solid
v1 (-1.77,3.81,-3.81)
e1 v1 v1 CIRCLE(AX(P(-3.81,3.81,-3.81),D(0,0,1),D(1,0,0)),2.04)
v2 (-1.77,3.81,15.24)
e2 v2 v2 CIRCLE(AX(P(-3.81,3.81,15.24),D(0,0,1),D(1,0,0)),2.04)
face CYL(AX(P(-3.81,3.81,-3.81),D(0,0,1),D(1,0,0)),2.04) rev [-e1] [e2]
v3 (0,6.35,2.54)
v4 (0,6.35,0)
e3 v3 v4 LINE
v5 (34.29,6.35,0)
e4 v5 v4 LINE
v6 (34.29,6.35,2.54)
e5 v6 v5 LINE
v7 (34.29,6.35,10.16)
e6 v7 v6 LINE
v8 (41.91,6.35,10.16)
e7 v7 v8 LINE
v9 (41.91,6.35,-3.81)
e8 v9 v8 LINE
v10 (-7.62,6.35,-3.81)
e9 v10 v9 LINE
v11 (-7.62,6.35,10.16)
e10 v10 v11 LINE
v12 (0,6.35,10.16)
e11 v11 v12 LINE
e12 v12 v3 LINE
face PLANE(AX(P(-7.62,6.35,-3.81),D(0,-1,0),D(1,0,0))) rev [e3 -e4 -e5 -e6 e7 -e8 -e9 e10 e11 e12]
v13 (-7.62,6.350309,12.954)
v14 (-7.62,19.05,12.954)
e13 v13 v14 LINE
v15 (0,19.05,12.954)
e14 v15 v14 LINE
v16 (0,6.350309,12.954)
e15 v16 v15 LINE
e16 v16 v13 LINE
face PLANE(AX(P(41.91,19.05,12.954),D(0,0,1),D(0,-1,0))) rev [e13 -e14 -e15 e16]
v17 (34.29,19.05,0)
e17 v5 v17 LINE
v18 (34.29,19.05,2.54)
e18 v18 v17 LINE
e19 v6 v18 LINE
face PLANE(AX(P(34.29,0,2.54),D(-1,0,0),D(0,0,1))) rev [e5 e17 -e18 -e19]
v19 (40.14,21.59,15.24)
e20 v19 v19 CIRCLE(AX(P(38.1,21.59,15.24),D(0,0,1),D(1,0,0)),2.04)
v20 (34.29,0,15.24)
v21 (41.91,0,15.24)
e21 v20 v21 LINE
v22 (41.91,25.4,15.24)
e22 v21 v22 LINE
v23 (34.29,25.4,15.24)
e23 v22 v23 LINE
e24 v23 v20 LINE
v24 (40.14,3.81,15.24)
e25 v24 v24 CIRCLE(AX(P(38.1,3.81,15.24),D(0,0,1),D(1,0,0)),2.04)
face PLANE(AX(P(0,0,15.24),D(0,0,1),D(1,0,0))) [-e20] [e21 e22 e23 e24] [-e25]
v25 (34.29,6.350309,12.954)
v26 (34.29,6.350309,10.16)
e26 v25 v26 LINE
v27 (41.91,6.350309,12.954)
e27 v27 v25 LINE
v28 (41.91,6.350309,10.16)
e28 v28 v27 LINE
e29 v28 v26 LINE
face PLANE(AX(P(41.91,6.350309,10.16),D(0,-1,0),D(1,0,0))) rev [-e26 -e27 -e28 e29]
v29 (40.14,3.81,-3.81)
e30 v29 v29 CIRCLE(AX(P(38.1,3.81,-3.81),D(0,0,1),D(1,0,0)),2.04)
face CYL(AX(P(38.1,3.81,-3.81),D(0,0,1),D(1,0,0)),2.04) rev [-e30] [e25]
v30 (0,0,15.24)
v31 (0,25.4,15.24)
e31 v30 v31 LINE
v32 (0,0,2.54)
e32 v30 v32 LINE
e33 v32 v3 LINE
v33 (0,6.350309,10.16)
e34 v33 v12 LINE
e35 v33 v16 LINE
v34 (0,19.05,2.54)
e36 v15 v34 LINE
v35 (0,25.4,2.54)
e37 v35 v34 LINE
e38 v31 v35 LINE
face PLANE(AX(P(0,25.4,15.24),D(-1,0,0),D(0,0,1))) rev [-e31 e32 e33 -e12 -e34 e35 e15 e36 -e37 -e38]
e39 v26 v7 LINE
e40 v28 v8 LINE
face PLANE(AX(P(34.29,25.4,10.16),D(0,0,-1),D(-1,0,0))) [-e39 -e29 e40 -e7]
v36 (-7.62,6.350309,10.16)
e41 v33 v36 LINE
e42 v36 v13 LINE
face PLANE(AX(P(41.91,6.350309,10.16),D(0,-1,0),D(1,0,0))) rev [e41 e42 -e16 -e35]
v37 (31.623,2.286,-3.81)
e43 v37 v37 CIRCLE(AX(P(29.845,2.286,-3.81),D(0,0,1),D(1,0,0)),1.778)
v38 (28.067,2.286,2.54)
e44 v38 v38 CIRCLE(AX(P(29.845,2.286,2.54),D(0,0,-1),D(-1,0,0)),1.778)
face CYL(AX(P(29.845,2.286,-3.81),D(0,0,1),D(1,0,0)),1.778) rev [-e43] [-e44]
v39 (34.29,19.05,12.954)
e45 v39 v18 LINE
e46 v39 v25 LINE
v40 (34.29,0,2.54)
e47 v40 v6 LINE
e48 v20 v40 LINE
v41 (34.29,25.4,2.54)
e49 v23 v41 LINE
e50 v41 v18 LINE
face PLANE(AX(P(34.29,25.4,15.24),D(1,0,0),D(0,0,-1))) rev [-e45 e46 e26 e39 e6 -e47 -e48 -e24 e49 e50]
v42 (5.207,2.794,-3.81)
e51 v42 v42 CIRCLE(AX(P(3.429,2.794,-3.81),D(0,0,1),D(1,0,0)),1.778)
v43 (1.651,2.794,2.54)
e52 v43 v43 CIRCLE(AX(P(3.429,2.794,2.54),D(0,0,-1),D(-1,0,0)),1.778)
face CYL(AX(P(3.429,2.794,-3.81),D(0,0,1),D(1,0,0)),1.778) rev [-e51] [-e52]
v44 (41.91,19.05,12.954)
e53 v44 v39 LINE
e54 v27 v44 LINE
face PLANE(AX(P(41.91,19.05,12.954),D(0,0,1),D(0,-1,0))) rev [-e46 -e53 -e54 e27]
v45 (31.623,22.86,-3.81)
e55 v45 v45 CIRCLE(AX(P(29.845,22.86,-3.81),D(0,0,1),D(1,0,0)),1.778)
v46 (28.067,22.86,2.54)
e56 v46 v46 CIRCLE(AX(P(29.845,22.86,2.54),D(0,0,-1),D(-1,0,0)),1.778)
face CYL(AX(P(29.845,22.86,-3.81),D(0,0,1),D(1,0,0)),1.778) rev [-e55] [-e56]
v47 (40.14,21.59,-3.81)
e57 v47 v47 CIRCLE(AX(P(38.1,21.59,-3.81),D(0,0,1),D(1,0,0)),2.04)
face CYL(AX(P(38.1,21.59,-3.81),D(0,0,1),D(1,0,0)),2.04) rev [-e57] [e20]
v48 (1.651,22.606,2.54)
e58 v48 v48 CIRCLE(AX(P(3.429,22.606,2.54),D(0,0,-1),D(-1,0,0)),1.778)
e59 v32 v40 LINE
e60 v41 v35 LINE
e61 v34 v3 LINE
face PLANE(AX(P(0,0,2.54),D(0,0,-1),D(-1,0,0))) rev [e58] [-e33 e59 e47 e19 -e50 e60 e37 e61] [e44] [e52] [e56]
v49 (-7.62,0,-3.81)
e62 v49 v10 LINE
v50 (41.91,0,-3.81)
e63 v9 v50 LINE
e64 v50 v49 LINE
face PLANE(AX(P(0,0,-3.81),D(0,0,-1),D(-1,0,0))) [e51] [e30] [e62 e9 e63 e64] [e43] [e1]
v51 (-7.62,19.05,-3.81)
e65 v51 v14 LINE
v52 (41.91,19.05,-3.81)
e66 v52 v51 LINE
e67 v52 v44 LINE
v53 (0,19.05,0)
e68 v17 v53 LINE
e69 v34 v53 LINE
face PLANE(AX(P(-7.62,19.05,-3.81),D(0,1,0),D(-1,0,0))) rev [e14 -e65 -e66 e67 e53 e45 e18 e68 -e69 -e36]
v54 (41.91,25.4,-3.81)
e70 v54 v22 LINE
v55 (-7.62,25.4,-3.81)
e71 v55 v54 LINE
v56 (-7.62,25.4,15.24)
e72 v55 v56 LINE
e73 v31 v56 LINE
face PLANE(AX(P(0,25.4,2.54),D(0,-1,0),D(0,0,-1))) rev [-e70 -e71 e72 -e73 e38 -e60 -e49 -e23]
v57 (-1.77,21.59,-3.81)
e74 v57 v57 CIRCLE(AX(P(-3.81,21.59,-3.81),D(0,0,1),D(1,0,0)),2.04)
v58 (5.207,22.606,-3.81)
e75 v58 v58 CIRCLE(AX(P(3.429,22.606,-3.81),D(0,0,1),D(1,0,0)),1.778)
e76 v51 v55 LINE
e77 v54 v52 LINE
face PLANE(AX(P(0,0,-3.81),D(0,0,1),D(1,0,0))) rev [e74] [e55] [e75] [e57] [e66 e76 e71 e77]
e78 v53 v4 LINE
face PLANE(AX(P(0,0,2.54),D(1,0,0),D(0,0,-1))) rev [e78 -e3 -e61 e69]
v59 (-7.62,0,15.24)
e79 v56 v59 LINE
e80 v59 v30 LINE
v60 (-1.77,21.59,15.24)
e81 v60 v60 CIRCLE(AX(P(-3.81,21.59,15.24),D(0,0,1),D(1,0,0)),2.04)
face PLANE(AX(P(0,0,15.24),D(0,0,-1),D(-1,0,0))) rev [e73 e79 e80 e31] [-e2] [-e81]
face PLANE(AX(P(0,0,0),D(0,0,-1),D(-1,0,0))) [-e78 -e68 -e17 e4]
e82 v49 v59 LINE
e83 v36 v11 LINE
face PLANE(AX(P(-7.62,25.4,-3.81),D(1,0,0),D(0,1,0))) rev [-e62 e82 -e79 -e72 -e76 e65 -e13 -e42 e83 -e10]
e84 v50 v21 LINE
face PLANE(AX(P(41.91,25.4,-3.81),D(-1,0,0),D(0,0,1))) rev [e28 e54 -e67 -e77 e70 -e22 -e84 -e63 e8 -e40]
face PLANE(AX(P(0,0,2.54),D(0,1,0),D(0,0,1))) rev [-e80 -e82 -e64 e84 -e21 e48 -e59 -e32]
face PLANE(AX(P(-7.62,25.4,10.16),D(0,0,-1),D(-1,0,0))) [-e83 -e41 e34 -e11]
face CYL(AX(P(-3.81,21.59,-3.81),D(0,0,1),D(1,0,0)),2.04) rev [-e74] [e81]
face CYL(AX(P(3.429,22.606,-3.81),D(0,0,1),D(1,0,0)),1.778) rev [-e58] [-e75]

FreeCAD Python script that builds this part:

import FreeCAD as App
import Part
import Sketcher

V = App.Vector
Q = App.Units.Quantity

doc = App.newDocument("Part")
body = doc.addObject("PartDesign::Body", "Body")

# Sketch on XY plane
sketch1 = body.newObject("Sketcher::SketchObject", "Sketch")
sketch1.AttachmentSupport = (doc.getObject("XY_Plane"), [""])
sketch1.MapMode = "FlatFace"
sketch1.addGeometry(Part.LineSegment(V(0, 25, 0), V(0, 0, 0)), False)
sketch1.addGeometry(Part.LineSegment(V(0, 0, 0), V(34, 0, 0)), False)
sketch1.addGeometry(Part.LineSegment(V(34, 0, 0), V(34, 25, 0)), False)
sketch1.addGeometry(Part.LineSegment(V(34, 25, 0), V(0, 25, 0)), False)
sketch1.addConstraint(Sketcher.Constraint("Coincident", 0, 2, 1, 1))
sketch1.addConstraint(Sketcher.Constraint("Coincident", 1, 2, 2, 1))
sketch1.addConstraint(Sketcher.Constraint("Coincident", 2, 2, 3, 1))
sketch1.addConstraint(Sketcher.Constraint("Coincident", 3, 2, 0, 1))
sketch1.addConstraint(Sketcher.Constraint("Vertical", 0))
sketch1.addConstraint(Sketcher.Constraint("Horizontal", 1))
sketch1.addConstraint(Sketcher.Constraint("Vertical", 2))
sketch1.addConstraint(Sketcher.Constraint("Horizontal", 3))
sketch1.addConstraint(Sketcher.Constraint("Coincident", 0, 2, -1, 1))
sketch1.addConstraint(Sketcher.Constraint("DistanceY", 0, 2, 0, 1, Q("1 in")))
sketch1.addConstraint(Sketcher.Constraint("DistanceX", 1, 1, 1, 2, Q("1.35 in")))
pad1 = body.newObject("PartDesign::Pad", "Pad")
pad1.Profile = sketch1
pad1.Length = Q("0.1 in")

# Sketch on XY plane
sketch2 = body.newObject("Sketcher::SketchObject", "Sketch001")
sketch2.AttachmentSupport = (doc.getObject("XY_Plane"), [""])
sketch2.MapMode = "FlatFace"
sketch2.addGeometry(Part.LineSegment(V(42, 25, 0), V(42, 19, 0)), False)
sketch2.addGeometry(Part.LineSegment(V(42, 19, 0), V(-8, 19, 0)), False)
sketch2.addGeometry(Part.LineSegment(V(-8, 19, 0), V(-8, 25, 0)), False)
sketch2.addGeometry(Part.LineSegment(V(-8, 25, 0), V(42, 25, 0)), False)
sketch2.addGeometry(Part.LineSegment(V(42, 6, 0), V(42, 0, 0)), False)
sketch2.addGeometry(Part.LineSegment(V(42, 0, 0), V(-8, 0, 0)), False)
sketch2.addGeometry(Part.LineSegment(V(-8, 0, 0), V(-8, 6, 0)), False)
sketch2.addGeometry(Part.LineSegment(V(-8, 6, 0), V(42, 6, 0)), False)
sketch2.addConstraint(Sketcher.Constraint("Coincident", 0, 2, 1, 1))
sketch2.addConstraint(Sketcher.Constraint("Coincident", 1, 2, 2, 1))
sketch2.addConstraint(Sketcher.Constraint("Coincident", 2, 2, 3, 1))
sketch2.addConstraint(Sketcher.Constraint("Coincident", 3, 2, 0, 1))
sketch2.addConstraint(Sketcher.Constraint("Coincident", 4, 2, 5, 1))
sketch2.addConstraint(Sketcher.Constraint("Coincident", 5, 2, 6, 1))
sketch2.addConstraint(Sketcher.Constraint("Coincident", 6, 2, 7, 1))
sketch2.addConstraint(Sketcher.Constraint("Coincident", 7, 2, 4, 1))
sketch2.addConstraint(Sketcher.Constraint("Vertical", 0))
sketch2.addConstraint(Sketcher.Constraint("Horizontal", 1))
sketch2.addConstraint(Sketcher.Constraint("Vertical", 2))
sketch2.addConstraint(Sketcher.Constraint("Horizontal", 3))
sketch2.addConstraint(Sketcher.Constraint("Vertical", 4))
sketch2.addConstraint(Sketcher.Constraint("Horizontal", 5))
sketch2.addConstraint(Sketcher.Constraint("Vertical", 6))
sketch2.addConstraint(Sketcher.Constraint("Horizontal", 7))
sketch2.addConstraint(Sketcher.Constraint("PointOnObject", 4, 2, -1))
sketch2.addConstraint(Sketcher.Constraint("Vertical", 3, 2, 4, 2))
sketch2.addConstraint(Sketcher.Constraint("Vertical", 2, 2, 5, 2))
sketch2.addConstraint(Sketcher.Constraint("Equal", 2, 4))
sketch2.addConstraint(Sketcher.Constraint("DistanceY", -1, 1, 2, 2, Q("1 in")))
sketch2.addConstraint(Sketcher.Constraint("DistanceX", 1, 2, 1, 1, Q("1.95 in")))
sketch2.addConstraint(Sketcher.Constraint("DistanceY", 0, 2, 0, 1, Q("0.25 in")))
sketch2.addConstraint(Sketcher.Constraint("DistanceX", 1, 2, -1, 1, Q("0.3 in")))
pad2 = body.newObject("PartDesign::Pad", "Pad001")
pad2.Profile = sketch2
pad2.Length = Q("0.15 in")
pad2.Reversed = True

# Sketch on XY plane
sketch3 = body.newObject("Sketcher::SketchObject", "Sketch002")
sketch3.AttachmentSupport = (doc.getObject("XY_Plane"), [""])
sketch3.MapMode = "FlatFace"
sketch3.AttachmentOffset = App.Placement(V(0, 0, 0.1 * 25.4), App.Rotation())
sketch3.addGeometry(Part.Circle(V(3.4, 22.6, 0), V(0, 0, 1), 1.8), False)
sketch3.addGeometry(Part.Circle(V(29.8, 22.9, 0), V(0, 0, 1), 1.8), False)
sketch3.addGeometry(Part.Circle(V(3.4, 2.8, 0), V(0, 0, 1), 1.8), False)
sketch3.addGeometry(Part.Circle(V(29.8, 2.3, 0), V(0, 0, 1), 1.8), False)
sketch3.addConstraint(Sketcher.Constraint("Equal", 0, 1))
sketch3.addConstraint(Sketcher.Constraint("Equal", 1, 2))
sketch3.addConstraint(Sketcher.Constraint("Equal", 2, 3))
sketch3.addConstraint(Sketcher.Constraint("Vertical", 0, 3, 2, 3))
sketch3.addConstraint(Sketcher.Constraint("Vertical", 1, 3, 3, 3))
sketch3.addConstraint(Sketcher.Constraint("Diameter", 0, Q("0.14 in")))
sketch3.addConstraint(Sketcher.Constraint("DistanceY", -1, 1, 1, 3, Q("0.9 in")))
sketch3.addConstraint(Sketcher.Constraint("DistanceY", 3, 3, 0, 3, Q("0.8 in")))
sketch3.addConstraint(Sketcher.Constraint("DistanceY", -1, 1, 0, 3, Q("0.89 in")))
sketch3.addConstraint(Sketcher.Constraint("DistanceY", -1, 1, 2, 3, Q("0.11 in")))
sketch3.addConstraint(Sketcher.Constraint("DistanceX", 0, 3, 1, 3, Q("1.04 in")))
sketch3.addConstraint(Sketcher.Constraint("DistanceX", -1, 1, 0, 3, Q("0.135 in")))
pocket1 = body.newObject("PartDesign::Pocket", "Pocket")
pocket1.Profile = sketch3
pocket1.Type = "ThroughAll"
pocket1.Midplane = True

# Sketch on XY plane
sketch4 = body.newObject("Sketcher::SketchObject", "Sketch003")
sketch4.AttachmentSupport = (doc.getObject("XY_Plane"), [""])
sketch4.MapMode = "FlatFace"
sketch4.addGeometry(Part.LineSegment(V(-8, 25, 0), V(-8, 19, 0)), False)
sketch4.addGeometry(Part.LineSegment(V(-8, 19, 0), V(0, 19, 0)), False)
sketch4.addGeometry(Part.LineSegment(V(0, 19, 0), V(0, 25, 0)), False)
sketch4.addGeometry(Part.LineSegment(V(0, 25, 0), V(-8, 25, 0)), False)
sketch4.addGeometry(Part.LineSegment(V(34, 25, 0), V(34, 19, 0)), False)
sketch4.addGeometry(Part.LineSegment(V(34, 19, 0), V(42, 19, 0)), False)
sketch4.addGeometry(Part.LineSegment(V(42, 19, 0), V(42, 25, 0)), False)
sketch4.addGeometry(Part.LineSegment(V(42, 25, 0), V(34, 25, 0)), False)
sketch4.addGeometry(Part.LineSegment(V(34, 6, 0), V(34, 0, 0)), False)
sketch4.addGeometry(Part.LineSegment(V(34, 0, 0), V(42, 0, 0)), False)
sketch4.addGeometry(Part.LineSegment(V(42, 0, 0), V(42, 6, 0)), False)
sketch4.addGeometry(Part.LineSegment(V(42, 6, 0), V(34, 6, 0)), False)
sketch4.addGeometry(Part.LineSegment(V(-8, 6, 0), V(-8, 0, 0)), False)
sketch4.addGeometry(Part.LineSegment(V(-8, 0, 0), V(0, 0, 0)), False)
sketch4.addGeometry(Part.LineSegment(V(0, 0, 0), V(0, 6, 0)), False)
sketch4.addGeometry(Part.LineSegment(V(0, 6, 0), V(-8, 6, 0)), False)
sketch4.addConstraint(Sketcher.Constraint("Coincident", 0, 2, 1, 1))
sketch4.addConstraint(Sketcher.Constraint("Coincident", 1, 2, 2, 1))
sketch4.addConstraint(Sketcher.Constraint("Coincident", 2, 2, 3, 1))
sketch4.addConstraint(Sketcher.Constraint("Coincident", 3, 2, 0, 1))
sketch4.addConstraint(Sketcher.Constraint("Coincident", 4, 2, 5, 1))
sketch4.addConstraint(Sketcher.Constraint("Coincident", 5, 2, 6, 1))
sketch4.addConstraint(Sketcher.Constraint("Coincident", 6, 2, 7, 1))
sketch4.addConstraint(Sketcher.Constraint("Coincident", 7, 2, 4, 1))
sketch4.addConstraint(Sketcher.Constraint("Coincident", 8, 2, 9, 1))
sketch4.addConstraint(Sketcher.Constraint("Coincident", 9, 2, 10, 1))
sketch4.addConstraint(Sketcher.Constraint("Coincident", 10, 2, 11, 1))
sketch4.addConstraint(Sketcher.Constraint("Coincident", 11, 2, 8, 1))
sketch4.addConstraint(Sketcher.Constraint("Coincident", 12, 2, 13, 1))
sketch4.addConstraint(Sketcher.Constraint("Coincident", 13, 2, 14, 1))
sketch4.addConstraint(Sketcher.Constraint("Coincident", 14, 2, 15, 1))
sketch4.addConstraint(Sketcher.Constraint("Coincident", 15, 2, 12, 1))
sketch4.addConstraint(Sketcher.Constraint("Vertical", 0))
sketch4.addConstraint(Sketcher.Constraint("Horizontal", 1))
sketch4.addConstraint(Sketcher.Constraint("Vertical", 2))
sketch4.addConstraint(Sketcher.Constraint("Horizontal", 3))
sketch4.addConstraint(Sketcher.Constraint("Vertical", 4))
sketch4.addConstraint(Sketcher.Constraint("Horizontal", 5))
sketch4.addConstraint(Sketcher.Constraint("Vertical", 6))
sketch4.addConstraint(Sketcher.Constraint("Horizontal", 7))
sketch4.addConstraint(Sketcher.Constraint("Vertical", 8))
sketch4.addConstraint(Sketcher.Constraint("Horizontal", 9))
sketch4.addConstraint(Sketcher.Constraint("Vertical", 10))
sketch4.addConstraint(Sketcher.Constraint("Horizontal", 11))
sketch4.addConstraint(Sketcher.Constraint("Vertical", 12))
sketch4.addConstraint(Sketcher.Constraint("Horizontal", 13))
sketch4.addConstraint(Sketcher.Constraint("Vertical", 14))
sketch4.addConstraint(Sketcher.Constraint("Horizontal", 15))
sketch4.addConstraint(Sketcher.Constraint("Coincident", 13, 2, -1, 1))
sketch4.addConstraint(Sketcher.Constraint("PointOnObject", 1, 2, -2))
sketch4.addConstraint(Sketcher.Constraint("PointOnObject", 8, 2, -1))
sketch4.addConstraint(Sketcher.Constraint("Horizontal", 1, 2, 4, 2))
sketch4.addConstraint(Sketcher.Constraint("Horizontal", 3, 2, 6, 2))
sketch4.addConstraint(Sketcher.Constraint("Horizontal", 11, 2, 14, 2))
sketch4.addConstraint(Sketcher.Constraint("Vertical", 7, 2, 8, 2))
sketch4.addConstraint(Sketcher.Constraint("Vertical", 6, 2, 9, 2))
sketch4.addConstraint(Sketcher.Constraint("Vertical", 3, 2, 12, 2))
sketch4.addConstraint(Sketcher.Constraint("Equal", 3, 5))
sketch4.addConstraint(Sketcher.Constraint("Equal", 6, 8))
sketch4.addConstraint(Sketcher.Constraint("DistanceX", 1, 1, 1, 2, Q("0.3 in")))
sketch4.addConstraint(Sketcher.Constraint("DistanceY", -1, 1, 2, 2, Q("1 in")))
sketch4.addConstraint(Sketcher.Constraint("DistanceY", 0, 2, 0, 1, Q("0.25 in")))
sketch4.addConstraint(Sketcher.Constraint("DistanceX", -1, 1, 4, 2, Q("1.35 in")))
pad3 = body.newObject("PartDesign::Pad", "Pad002")
pad3.Profile = sketch4
pad3.Length = Q("0.6 in")

# Sketch on XZ plane
sketch5 = body.newObject("Sketcher::SketchObject", "Sketch004")
sketch5.AttachmentSupport = (doc.getObject("XZ_Plane"), [""])
sketch5.MapMode = "FlatFace"
sketch5.addGeometry(Part.LineSegment(V(-8, 15, 0), V(-8, 10, 0)), False)
sketch5.addGeometry(Part.LineSegment(V(-8, 10, 0), V(0, 10, 0)), False)
sketch5.addGeometry(Part.LineSegment(V(0, 10, 0), V(0, 15, 0)), False)
sketch5.addGeometry(Part.LineSegment(V(0, 15, 0), V(-8, 15, 0)), False)
sketch5.addConstraint(Sketcher.Constraint("Coincident", 0, 2, 1, 1))
sketch5.addConstraint(Sketcher.Constraint("Coincident", 1, 2, 2, 1))
sketch5.addConstraint(Sketcher.Constraint("Coincident", 2, 2, 3, 1))
sketch5.addConstraint(Sketcher.Constraint("Coincident", 3, 2, 0, 1))
sketch5.addConstraint(Sketcher.Constraint("Vertical", 0))
sketch5.addConstraint(Sketcher.Constraint("Horizontal", 1))
sketch5.addConstraint(Sketcher.Constraint("Vertical", 2))
sketch5.addConstraint(Sketcher.Constraint("Horizontal", 3))
sketch5.addConstraint(Sketcher.Constraint("PointOnObject", 1, 2, -2))
sketch5.addConstraint(Sketcher.Constraint("DistanceX", 1, 1, 1, 2, Q("0.3 in")))
sketch5.addConstraint(Sketcher.Constraint("DistanceY", 0, 2, 0, 1, Q("0.2 in")))
sketch5.addConstraint(Sketcher.Constraint("DistanceY", -1, 1, 0, 2, Q("0.4 in")))
pad4 = body.newObject("PartDesign::Pad", "Pad003")
pad4.Profile = sketch5
pad4.Length = Q("0.75 in")
pad4.Reversed = True

# Sketch on XZ plane
sketch6 = body.newObject("Sketcher::SketchObject", "Sketch005")
sketch6.AttachmentSupport = (doc.getObject("XZ_Plane"), [""])
sketch6.MapMode = "FlatFace"
sketch6.addGeometry(Part.LineSegment(V(34, 15, 0), V(34, 10, 0)), False)
sketch6.addGeometry(Part.LineSegment(V(34, 10, 0), V(42, 10, 0)), False)
sketch6.addGeometry(Part.LineSegment(V(42, 10, 0), V(42, 15, 0)), False)
sketch6.addGeometry(Part.LineSegment(V(42, 15, 0), V(34, 15, 0)), False)
sketch6.addConstraint(Sketcher.Constraint("Coincident", 0, 2, 1, 1))
sketch6.addConstraint(Sketcher.Constraint("Coincident", 1, 2, 2, 1))
sketch6.addConstraint(Sketcher.Constraint("Coincident", 2, 2, 3, 1))
sketch6.addConstraint(Sketcher.Constraint("Coincident", 3, 2, 0, 1))
sketch6.addConstraint(Sketcher.Constraint("Vertical", 0))
sketch6.addConstraint(Sketcher.Constraint("Horizontal", 1))
sketch6.addConstraint(Sketcher.Constraint("Vertical", 2))
sketch6.addConstraint(Sketcher.Constraint("Horizontal", 3))
sketch6.addConstraint(Sketcher.Constraint("DistanceX", 1, 1, 1, 2, Q("0.3 in")))
sketch6.addConstraint(Sketcher.Constraint("DistanceY", 0, 2, 0, 1, Q("0.2 in")))
sketch6.addConstraint(Sketcher.Constraint("DistanceY", -1, 1, 0, 2, Q("0.4 in")))
sketch6.addConstraint(Sketcher.Constraint("DistanceX", -1, 1, 0, 2, Q("1.35 in")))
pad5 = body.newObject("PartDesign::Pad", "Pad004")
pad5.Profile = sketch6
pad5.Length = Q("0.75 in")
pad5.Reversed = True

# Sketch on XY plane
sketch7 = body.newObject("Sketcher::SketchObject", "Sketch006")
sketch7.AttachmentSupport = (doc.getObject("XY_Plane"), [""])
sketch7.MapMode = "FlatFace"
sketch7.AttachmentOffset = App.Placement(V(0, 0, 0.6 * 25.4), App.Rotation())
sketch7.addGeometry(Part.Circle(V(38.1, 3.8, 0), V(0, 0, 1), 2), False)
sketch7.addGeometry(Part.Circle(V(38.1, 21.6, 0), V(0, 0, 1), 2), False)
sketch7.addGeometry(Part.Circle(V(-3.8, 3.8, 0), V(0, 0, 1), 2), False)
sketch7.addGeometry(Part.Circle(V(-3.8, 21.6, 0), V(0, 0, 1), 2), False)
sketch7.addConstraint(Sketcher.Constraint("Equal", 0, 1))
sketch7.addConstraint(Sketcher.Constraint("Equal", 1, 2))
sketch7.addConstraint(Sketcher.Constraint("Equal", 2, 3))
sketch7.addConstraint(Sketcher.Constraint("Horizontal", 0, 3, 2, 3))
sketch7.addConstraint(Sketcher.Constraint("Horizontal", 1, 3, 3, 3))
sketch7.addConstraint(Sketcher.Constraint("Vertical", 0, 3, 1, 3))
sketch7.addConstraint(Sketcher.Constraint("Vertical", 2, 3, 3, 3))
sketch7.addConstraint(Sketcher.Constraint("DistanceX", -1, 1, 0, 3, Q("1.5 in")))
sketch7.addConstraint(Sketcher.Constraint("DistanceY", 0, 3, 1, 3, Q("0.7 in")))
sketch7.addConstraint(Sketcher.Constraint("Diameter", 0, 4.08))
sketch7.addConstraint(Sketcher.Constraint("DistanceY", -1, 1, 0, 3, Q("0.15 in")))
sketch7.addConstraint(Sketcher.Constraint("DistanceX", 2, 3, -1, 1, Q("0.15 in")))
pocket2 = body.newObject("PartDesign::Pocket", "Pocket001")
pocket2.Profile = sketch7
pocket2.Type = "ThroughAll"

# Sketch on YZ plane
sketch8 = body.newObject("Sketcher::SketchObject", "Sketch007")
sketch8.AttachmentSupport = (doc.getObject("YZ_Plane"), [""])
sketch8.MapMode = "FlatFace"
sketch8.AttachmentOffset = App.Placement(V(0, 0, -0.3 * 25.4), App.Rotation())
sketch8.addGeometry(Part.LineSegment(V(19.1, 10.2, 0), V(6.4, 10.2, 0)), False)
sketch8.addGeometry(Part.LineSegment(V(6.4, 10.2, 0), V(6.4, 13, 0)), False)
sketch8.addGeometry(Part.LineSegment(V(6.4, 13, 0), V(19.1, 13, 0)), False)
sketch8.addGeometry(Part.LineSegment(V(19.1, 13, 0), V(19.1, 10.2, 0)), False)
sketch8.addConstraint(Sketcher.Constraint("Coincident", 0, 2, 1, 1))
sketch8.addConstraint(Sketcher.Constraint("Coincident", 1, 2, 2, 1))
sketch8.addConstraint(Sketcher.Constraint("Coincident", 2, 2, 3, 1))
sketch8.addConstraint(Sketcher.Constraint("Coincident", 3, 2, 0, 1))
sketch8.addConstraint(Sketcher.Constraint("Horizontal", 0))
sketch8.addConstraint(Sketcher.Constraint("Vertical", 1))
sketch8.addConstraint(Sketcher.Constraint("Horizontal", 2))
sketch8.addConstraint(Sketcher.Constraint("Vertical", 3))
sketch8.addConstraint(Sketcher.Constraint("DistanceY", 1, 1, 1, 2, Q("0.11 in")))
sketch8.addConstraint(Sketcher.Constraint("DistanceY", -1, 1, 0, 2, Q("0.4 in")))
sketch8.addConstraint(Sketcher.Constraint("DistanceX", -1, 1, 2, 2, Q("0.75 in")))
sketch8.addConstraint(Sketcher.Constraint("DistanceX", 0, 2, 0, 1, 12.699691))
pocket3 = body.newObject("PartDesign::Pocket", "Pocket002")
pocket3.Profile = sketch8
pocket3.Type = "ThroughAll"
pocket3.Reversed = True

doc.recompute()
